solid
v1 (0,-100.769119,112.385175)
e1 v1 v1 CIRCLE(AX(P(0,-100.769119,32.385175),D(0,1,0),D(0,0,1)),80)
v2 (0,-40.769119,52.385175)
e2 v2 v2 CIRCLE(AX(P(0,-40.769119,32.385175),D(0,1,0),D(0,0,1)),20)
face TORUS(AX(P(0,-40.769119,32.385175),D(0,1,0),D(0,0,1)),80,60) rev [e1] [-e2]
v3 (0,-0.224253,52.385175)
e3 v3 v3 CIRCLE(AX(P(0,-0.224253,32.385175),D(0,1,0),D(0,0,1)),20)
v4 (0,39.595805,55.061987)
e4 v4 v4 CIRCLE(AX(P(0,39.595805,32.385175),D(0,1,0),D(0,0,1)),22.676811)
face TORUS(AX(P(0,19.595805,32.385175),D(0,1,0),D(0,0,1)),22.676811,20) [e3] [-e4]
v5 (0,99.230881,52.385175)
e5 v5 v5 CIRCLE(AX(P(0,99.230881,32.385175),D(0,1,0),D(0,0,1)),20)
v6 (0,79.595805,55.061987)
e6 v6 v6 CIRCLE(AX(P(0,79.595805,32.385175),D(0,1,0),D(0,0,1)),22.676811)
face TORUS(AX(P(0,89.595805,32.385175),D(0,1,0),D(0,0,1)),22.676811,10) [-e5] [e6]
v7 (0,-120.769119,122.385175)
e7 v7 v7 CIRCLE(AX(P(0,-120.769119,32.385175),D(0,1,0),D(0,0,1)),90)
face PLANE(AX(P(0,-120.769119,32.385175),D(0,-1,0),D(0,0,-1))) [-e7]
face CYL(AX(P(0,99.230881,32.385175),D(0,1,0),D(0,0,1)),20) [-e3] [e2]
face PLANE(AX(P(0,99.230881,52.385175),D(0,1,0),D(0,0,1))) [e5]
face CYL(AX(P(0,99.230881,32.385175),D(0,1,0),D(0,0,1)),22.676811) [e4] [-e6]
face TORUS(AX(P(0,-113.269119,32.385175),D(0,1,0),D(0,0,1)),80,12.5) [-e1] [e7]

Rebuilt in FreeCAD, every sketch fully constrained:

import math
import FreeCAD as App
import Part
import Sketcher
from FreeCAD import Vector

doc = App.newDocument("Part")
params = doc.addObject("Spreadsheet::Sheet", "Params")
for row, (alias, value) in enumerate([
    ("sketch1_radius", "20 mm"),
    ("sketch1_radius2", "60 mm"),
    ("sketch1_radius3", "10 mm"),
    ("sketch1_radius4", "12.5 mm"),
    ("sketch1_width", "40 mm"),
    ("revolution_angle", "360 deg"),
], start=1):
    params.set(f"A{row}", alias)
    params.set(f"B{row}", "=" + value)
    params.setAlias(f"B{row}", alias)

body = doc.addObject("PartDesign::Body", "Body")

# Sketch on YZ plane
sketch1 = doc.addObject("Sketcher::SketchObject", "Sketch")
body.addObject(sketch1)
sketch1.AttachmentSupport = (doc.YZ_Plane, [""])
sketch1.MapMode = "FlatFace"
sketch1.addGeometry([
    Part.LineSegment(Vector(80, 55, 0), Vector(40, 55, 0)),  # 0
    Part.ArcOfCircle(Part.Circle(Vector(20, 55, 0), Vector(0, 0, 1), 20), math.radians(0), math.radians(188)),  # 1
    Part.LineSegment(Vector(0, 52, 0), Vector(-41, 52, 0)),  # 2
    Part.ArcOfCircle(Part.Circle(Vector(-41, 112, 0), Vector(0, 0, 1), 60), math.radians(180), math.radians(270)),  # 3
    Part.ArcOfCircle(Part.Circle(Vector(-113, 112, 0), Vector(0, 0, 1), 12), math.radians(0), math.radians(127)),  # 4
    Part.LineSegment(Vector(-121, 122, 0), Vector(-121, 32, 0)),  # 5
    Part.LineSegment(Vector(-121, 32, 0), Vector(99, 32, 0)),  # 6
    Part.LineSegment(Vector(99, 32, 0), Vector(99, 52, 0)),  # 7
    Part.ArcOfCircle(Part.Circle(Vector(90, 55, 0), Vector(0, 0, 1), 10), math.radians(-16), math.radians(180)),  # 8
], False)
sketch1.addGeometry(Part.LineSegment(Vector(99, 32, 0), Vector(-121, 32, 0)), True)  # axis
sketch1.addConstraint([
    Sketcher.Constraint("Coincident", 0, 2, 1, 1),
    Sketcher.Constraint("Coincident", 1, 2, 2, 1),
    Sketcher.Constraint("Tangent", 2, 2, 3, 2),
    Sketcher.Constraint("Tangent", 3, 1, 4, 1),
    Sketcher.Constraint("Coincident", 4, 2, 5, 1),
    Sketcher.Constraint("Coincident", 5, 2, 6, 1),
    Sketcher.Constraint("Coincident", 6, 2, 7, 1),
    Sketcher.Constraint("Coincident", 7, 2, 8, 1),
    Sketcher.Constraint("Coincident", 8, 2, 0, 1),
    Sketcher.Constraint("Horizontal", 0),
    Sketcher.Constraint("Horizontal", 2),
    Sketcher.Constraint("Vertical", 5),
    Sketcher.Constraint("Horizontal", 6),
    Sketcher.Constraint("Vertical", 7),
    Sketcher.Constraint("Horizontal", 9),
    Sketcher.Constraint("Coincident", 9, 1, 6, 2),
    Sketcher.Constraint("Horizontal", 3, 3, 4, 3),
    Sketcher.Constraint("Horizontal", 1, 3, 8, 3),
    Sketcher.Constraint("Horizontal", 8, 3, 0, 2),
    Sketcher.Constraint("Horizontal", 2, 2, 7, 2),
    Sketcher.Constraint("Vertical", 4, 2, 9, 2),
    Sketcher.Constraint("Radius", 1, 20.0),
    Sketcher.Constraint("Radius", 3, 60.0),
    Sketcher.Constraint("Radius", 8, 10.0),
    Sketcher.Constraint("Radius", 4, 12.5),
    Sketcher.Constraint("DistanceX", 0, 2, 0, 1, 40.0),
    Sketcher.Constraint("DistanceX", 6, 1, 6, 2, 220.0),
    Sketcher.Constraint("DistanceY", 5, 2, 5, 1, 90.0),
    Sketcher.Constraint("DistanceY", 7, 1, 7, 2, 20.0),
    Sketcher.Constraint("DistanceX", 2, 2, 2, 1, 40.544867),
    Sketcher.Constraint("DistanceX", 3, 3, -1, 1, 40.769119),
    Sketcher.Constraint("DistanceY", -1, 1, 1, 3, 55.061987),
])
sketch1.setExpression("Constraints[21]", "Params.sketch1_radius")
sketch1.setExpression("Constraints[22]", "Params.sketch1_radius2")
sketch1.setExpression("Constraints[23]", "Params.sketch1_radius3")
sketch1.setExpression("Constraints[24]", "Params.sketch1_radius4")
sketch1.setExpression("Constraints[25]", "Params.sketch1_width")
revolution = doc.addObject("PartDesign::Revolution", "Revolution")
body.addObject(revolution)
revolution.Profile = sketch1
revolution.ReferenceAxis = (sketch1, ["Axis0"])
revolution.setExpression("Angle", "Params.revolution_angle")

doc.recompute()
